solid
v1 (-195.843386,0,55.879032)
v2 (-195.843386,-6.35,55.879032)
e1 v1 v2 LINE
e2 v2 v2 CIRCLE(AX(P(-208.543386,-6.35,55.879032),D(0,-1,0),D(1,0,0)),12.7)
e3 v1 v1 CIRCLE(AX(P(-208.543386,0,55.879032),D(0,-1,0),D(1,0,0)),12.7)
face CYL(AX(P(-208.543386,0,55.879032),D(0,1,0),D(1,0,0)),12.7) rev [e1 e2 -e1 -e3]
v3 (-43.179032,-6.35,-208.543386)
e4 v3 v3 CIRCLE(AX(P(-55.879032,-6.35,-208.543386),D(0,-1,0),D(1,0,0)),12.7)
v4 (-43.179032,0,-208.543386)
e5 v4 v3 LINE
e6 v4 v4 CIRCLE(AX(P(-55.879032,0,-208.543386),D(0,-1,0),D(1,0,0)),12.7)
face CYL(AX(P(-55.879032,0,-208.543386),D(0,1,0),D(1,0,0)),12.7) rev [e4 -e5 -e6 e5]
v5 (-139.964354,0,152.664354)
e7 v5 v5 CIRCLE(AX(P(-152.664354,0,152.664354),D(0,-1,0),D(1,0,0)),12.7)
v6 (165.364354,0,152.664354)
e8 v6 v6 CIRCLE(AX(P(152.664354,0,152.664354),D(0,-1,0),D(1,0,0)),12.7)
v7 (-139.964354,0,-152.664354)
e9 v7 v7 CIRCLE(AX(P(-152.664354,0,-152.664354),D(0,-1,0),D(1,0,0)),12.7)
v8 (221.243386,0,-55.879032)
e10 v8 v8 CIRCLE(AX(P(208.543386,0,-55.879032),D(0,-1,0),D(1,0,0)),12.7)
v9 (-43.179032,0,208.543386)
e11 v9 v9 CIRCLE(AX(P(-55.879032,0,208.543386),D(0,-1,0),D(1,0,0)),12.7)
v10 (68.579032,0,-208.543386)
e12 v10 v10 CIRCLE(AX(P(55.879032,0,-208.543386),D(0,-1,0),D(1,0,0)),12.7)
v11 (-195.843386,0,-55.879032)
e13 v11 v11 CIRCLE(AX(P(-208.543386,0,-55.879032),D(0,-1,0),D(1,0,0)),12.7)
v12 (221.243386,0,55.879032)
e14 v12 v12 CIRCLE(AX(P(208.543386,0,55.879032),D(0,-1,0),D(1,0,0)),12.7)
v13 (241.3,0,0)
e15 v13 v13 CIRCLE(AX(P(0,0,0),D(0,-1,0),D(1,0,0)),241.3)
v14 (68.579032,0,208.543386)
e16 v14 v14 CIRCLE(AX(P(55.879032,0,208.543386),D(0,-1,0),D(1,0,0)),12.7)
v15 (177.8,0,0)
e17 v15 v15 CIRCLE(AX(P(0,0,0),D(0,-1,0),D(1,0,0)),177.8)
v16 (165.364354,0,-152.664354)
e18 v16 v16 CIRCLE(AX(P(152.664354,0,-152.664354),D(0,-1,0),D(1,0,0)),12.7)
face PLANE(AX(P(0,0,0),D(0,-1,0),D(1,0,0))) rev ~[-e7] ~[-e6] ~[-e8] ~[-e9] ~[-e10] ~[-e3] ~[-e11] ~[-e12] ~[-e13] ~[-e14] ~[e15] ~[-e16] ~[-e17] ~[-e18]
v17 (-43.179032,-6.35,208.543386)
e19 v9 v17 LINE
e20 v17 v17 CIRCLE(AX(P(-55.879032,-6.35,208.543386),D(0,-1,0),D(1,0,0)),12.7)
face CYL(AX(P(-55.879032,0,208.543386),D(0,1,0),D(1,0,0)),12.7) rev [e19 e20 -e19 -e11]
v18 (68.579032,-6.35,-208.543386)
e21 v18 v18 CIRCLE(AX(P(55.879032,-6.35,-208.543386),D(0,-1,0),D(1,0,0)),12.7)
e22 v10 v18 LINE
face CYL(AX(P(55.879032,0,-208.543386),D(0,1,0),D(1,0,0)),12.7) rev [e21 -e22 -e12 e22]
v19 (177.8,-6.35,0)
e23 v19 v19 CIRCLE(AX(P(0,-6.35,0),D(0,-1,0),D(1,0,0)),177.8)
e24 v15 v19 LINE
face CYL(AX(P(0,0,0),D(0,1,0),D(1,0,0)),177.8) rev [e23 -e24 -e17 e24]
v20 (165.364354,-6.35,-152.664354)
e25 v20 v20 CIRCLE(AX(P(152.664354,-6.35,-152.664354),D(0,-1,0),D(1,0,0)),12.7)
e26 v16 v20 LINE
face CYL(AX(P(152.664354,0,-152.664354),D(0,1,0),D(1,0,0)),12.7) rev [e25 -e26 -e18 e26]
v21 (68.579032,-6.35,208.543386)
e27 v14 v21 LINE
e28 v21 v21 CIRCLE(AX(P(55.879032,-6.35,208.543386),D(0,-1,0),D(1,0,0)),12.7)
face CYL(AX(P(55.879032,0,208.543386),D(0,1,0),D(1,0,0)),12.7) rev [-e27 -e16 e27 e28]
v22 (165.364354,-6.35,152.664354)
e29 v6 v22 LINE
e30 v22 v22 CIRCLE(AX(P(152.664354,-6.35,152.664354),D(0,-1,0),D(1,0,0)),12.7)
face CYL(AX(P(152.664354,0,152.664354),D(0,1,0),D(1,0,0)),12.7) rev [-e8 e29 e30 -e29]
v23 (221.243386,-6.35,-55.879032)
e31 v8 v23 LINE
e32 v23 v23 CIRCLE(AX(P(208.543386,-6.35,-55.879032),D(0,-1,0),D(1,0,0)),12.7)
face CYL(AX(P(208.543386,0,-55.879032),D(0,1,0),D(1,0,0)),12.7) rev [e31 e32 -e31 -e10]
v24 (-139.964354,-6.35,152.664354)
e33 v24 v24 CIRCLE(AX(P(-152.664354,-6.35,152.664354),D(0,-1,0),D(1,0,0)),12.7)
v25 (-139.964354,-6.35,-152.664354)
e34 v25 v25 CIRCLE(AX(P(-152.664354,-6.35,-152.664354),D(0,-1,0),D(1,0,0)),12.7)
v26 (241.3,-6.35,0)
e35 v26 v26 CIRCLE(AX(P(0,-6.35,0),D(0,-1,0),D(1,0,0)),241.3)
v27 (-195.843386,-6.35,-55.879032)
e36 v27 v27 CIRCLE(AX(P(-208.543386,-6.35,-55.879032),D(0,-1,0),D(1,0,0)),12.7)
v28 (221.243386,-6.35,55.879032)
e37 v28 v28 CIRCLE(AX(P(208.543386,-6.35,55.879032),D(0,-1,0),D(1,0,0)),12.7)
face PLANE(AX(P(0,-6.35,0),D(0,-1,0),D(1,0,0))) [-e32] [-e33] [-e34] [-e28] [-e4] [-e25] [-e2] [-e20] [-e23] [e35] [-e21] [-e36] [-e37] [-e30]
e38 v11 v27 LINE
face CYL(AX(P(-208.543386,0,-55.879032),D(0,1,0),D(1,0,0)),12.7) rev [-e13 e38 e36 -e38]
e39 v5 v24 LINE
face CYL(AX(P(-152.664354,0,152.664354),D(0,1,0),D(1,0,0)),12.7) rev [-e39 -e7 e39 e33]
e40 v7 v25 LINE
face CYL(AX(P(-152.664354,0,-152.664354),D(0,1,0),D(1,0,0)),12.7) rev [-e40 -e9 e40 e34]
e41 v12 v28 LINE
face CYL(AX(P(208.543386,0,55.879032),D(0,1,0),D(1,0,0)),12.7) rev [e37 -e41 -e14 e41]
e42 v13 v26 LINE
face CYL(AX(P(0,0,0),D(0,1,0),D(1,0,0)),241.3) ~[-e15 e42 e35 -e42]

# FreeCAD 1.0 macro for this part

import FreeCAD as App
import Part
import Sketcher
from FreeCAD import Vector
Q = App.Units.Quantity

doc = App.newDocument("Part")
body = doc.addObject("PartDesign::Body", "Body")

# Sketch on XZ plane
sketch1 = body.newObject("Sketcher::SketchObject", "Sketch")
sketch1.AttachmentSupport = (doc.getObject("XZ_Plane"), [""])
sketch1.MapMode = "FlatFace"
sketch1.addGeometry(Part.Circle(Vector(0, 0, 0), Vector(0, 0, 1), 241), False)
sketch1.addGeometry(Part.Circle(Vector(-153, -153, 0), Vector(0, 0, 1), 13), False)
sketch1.addGeometry(Part.Circle(Vector(-56, -209, 0), Vector(0, 0, 1), 13), False)
sketch1.addGeometry(Part.Circle(Vector(-209, -56, 0), Vector(0, 0, 1), 13), False)
sketch1.addGeometry(Part.Circle(Vector(56, -209, 0), Vector(0, 0, 1), 13), False)
sketch1.addGeometry(Part.Circle(Vector(153, -153, 0), Vector(0, 0, 1), 13), False)
sketch1.addGeometry(Part.Circle(Vector(209, -56, 0), Vector(0, 0, 1), 13), False)
sketch1.addGeometry(Part.Circle(Vector(-209, 56, 0), Vector(0, 0, 1), 13), False)
sketch1.addGeometry(Part.Circle(Vector(-153, 153, 0), Vector(0, 0, 1), 13), False)
sketch1.addGeometry(Part.Circle(Vector(-56, 209, 0), Vector(0, 0, 1), 13), False)
sketch1.addGeometry(Part.Circle(Vector(0, 0, 0), Vector(0, 0, 1), 178), False)
sketch1.addGeometry(Part.Circle(Vector(209, 56, 0), Vector(0, 0, 1), 13), False)
sketch1.addGeometry(Part.Circle(Vector(56, 209, 0), Vector(0, 0, 1), 13), False)
sketch1.addGeometry(Part.Circle(Vector(153, 153, 0), Vector(0, 0, 1), 13), False)
sketch1.addConstraint(Sketcher.Constraint("Coincident", 0, 3, -1, 1))
sketch1.addConstraint(Sketcher.Constraint("Coincident", 10, 3, -1, 1))
sketch1.addConstraint(Sketcher.Constraint("Equal", 1, 2))
sketch1.addConstraint(Sketcher.Constraint("Equal", 2, 3))
sketch1.addConstraint(Sketcher.Constraint("Equal", 3, 4))
sketch1.addConstraint(Sketcher.Constraint("Equal", 4, 5))
sketch1.addConstraint(Sketcher.Constraint("Equal", 5, 6))
sketch1.addConstraint(Sketcher.Constraint("Equal", 6, 7))
sketch1.addConstraint(Sketcher.Constraint("Equal", 7, 8))
sketch1.addConstraint(Sketcher.Constraint("Equal", 8, 9))
sketch1.addConstraint(Sketcher.Constraint("Equal", 9, 11))
sketch1.addConstraint(Sketcher.Constraint("Equal", 11, 12))
sketch1.addConstraint(Sketcher.Constraint("Equal", 12, 13))
sketch1.addConstraint(Sketcher.Constraint("Symmetric", 6, 3, 7, 3, -1, 1))
sketch1.addConstraint(Sketcher.Constraint("Symmetric", 5, 3, 8, 3, -1, 1))
sketch1.addConstraint(Sketcher.Constraint("Symmetric", 4, 3, 9, 3, -1, 1))
sketch1.addConstraint(Sketcher.Constraint("Symmetric", 3, 3, 11, 3, -1, 1))
sketch1.addConstraint(Sketcher.Constraint("Symmetric", 2, 3, 12, 3, -1, 1))
sketch1.addConstraint(Sketcher.Constraint("Symmetric", 1, 3, 13, 3, -1, 1))
sketch1.addConstraint(Sketcher.Constraint("Symmetric", 2, 3, 4, 3, -2))
sketch1.addConstraint(Sketcher.Constraint("Symmetric", 1, 3, 5, 3, -2))
sketch1.addConstraint(Sketcher.Constraint("Symmetric", 3, 3, 6, 3, -2))
sketch1.addConstraint(Sketcher.Constraint("Diameter", 0, Q("19 in")))
sketch1.addConstraint(Sketcher.Constraint("Diameter", 1, Q("1 in")))
sketch1.addConstraint(Sketcher.Constraint("Diameter", 10, Q("14 in")))
sketch1.addConstraint(Sketcher.Constraint("DistanceX", 2, 3, -1, 1, Q("55.879032 mm")))
sketch1.addConstraint(Sketcher.Constraint("DistanceY", 3, 3, -1, 1, Q("55.879032 mm")))
sketch1.addConstraint(Sketcher.Constraint("DistanceY", 2, 3, 1, 3, Q("55.879032 mm")))
sketch1.addConstraint(Sketcher.Constraint("DistanceX", 3, 3, 1, 3, Q("55.879032 mm")))
sketch1.addConstraint(Sketcher.Constraint("DistanceX", 1, 3, 5, 3, Q("305.328708 mm")))
sketch1.addConstraint(Sketcher.Constraint("DistanceY", 1, 3, 8, 3, Q("305.328708 mm")))
pad1 = body.newObject("PartDesign::Pad", "Pad")
pad1.Profile = sketch1
pad1.Length = Q("0.25 in")

doc.recompute()
